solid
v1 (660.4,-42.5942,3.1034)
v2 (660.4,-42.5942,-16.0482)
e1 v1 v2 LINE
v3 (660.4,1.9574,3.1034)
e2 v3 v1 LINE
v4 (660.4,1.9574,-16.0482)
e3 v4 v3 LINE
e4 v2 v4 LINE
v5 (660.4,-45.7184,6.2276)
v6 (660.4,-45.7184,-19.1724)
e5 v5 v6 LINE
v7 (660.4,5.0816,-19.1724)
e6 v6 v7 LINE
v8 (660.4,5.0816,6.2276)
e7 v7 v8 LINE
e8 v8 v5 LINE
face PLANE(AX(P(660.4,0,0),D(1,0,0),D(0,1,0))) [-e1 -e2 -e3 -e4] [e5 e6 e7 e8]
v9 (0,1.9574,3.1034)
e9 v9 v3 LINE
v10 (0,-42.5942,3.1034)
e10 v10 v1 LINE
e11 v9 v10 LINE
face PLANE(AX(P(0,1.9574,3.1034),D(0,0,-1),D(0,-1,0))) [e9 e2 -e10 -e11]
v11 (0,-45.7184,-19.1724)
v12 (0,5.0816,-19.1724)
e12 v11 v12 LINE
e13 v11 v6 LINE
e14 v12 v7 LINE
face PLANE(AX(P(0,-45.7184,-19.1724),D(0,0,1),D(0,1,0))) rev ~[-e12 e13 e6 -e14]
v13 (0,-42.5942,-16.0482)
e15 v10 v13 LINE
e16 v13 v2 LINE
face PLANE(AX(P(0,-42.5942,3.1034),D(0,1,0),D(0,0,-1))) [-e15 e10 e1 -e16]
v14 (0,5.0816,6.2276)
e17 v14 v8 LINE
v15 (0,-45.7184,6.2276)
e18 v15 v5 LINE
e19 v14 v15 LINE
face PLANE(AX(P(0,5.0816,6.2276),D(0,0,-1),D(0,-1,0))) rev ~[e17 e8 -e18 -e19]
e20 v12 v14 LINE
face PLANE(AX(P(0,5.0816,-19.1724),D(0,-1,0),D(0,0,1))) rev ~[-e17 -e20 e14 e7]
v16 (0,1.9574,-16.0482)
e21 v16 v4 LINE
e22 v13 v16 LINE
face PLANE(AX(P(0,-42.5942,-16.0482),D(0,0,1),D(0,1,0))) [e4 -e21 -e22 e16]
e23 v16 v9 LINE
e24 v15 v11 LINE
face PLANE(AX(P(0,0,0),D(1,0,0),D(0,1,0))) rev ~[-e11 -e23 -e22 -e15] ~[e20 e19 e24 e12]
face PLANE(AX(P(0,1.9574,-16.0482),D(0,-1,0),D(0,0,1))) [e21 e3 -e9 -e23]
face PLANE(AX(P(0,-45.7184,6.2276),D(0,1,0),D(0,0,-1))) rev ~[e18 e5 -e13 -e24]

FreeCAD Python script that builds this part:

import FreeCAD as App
import Part
import Sketcher
from FreeCAD import Vector
Q = App.Units.Quantity


def add_polygon(sketch, points):
    """Adds a closed chain of lines whose ends are joined by coincident constraints."""
    first, n = sketch.GeometryCount, len(points)
    for a, b in zip(points, points[1:] + points[:1]):
        sketch.addGeometry(Part.LineSegment(App.Vector(*a, 0), App.Vector(*b, 0)), False)
    for i in range(n):
        sketch.addConstraint(Sketcher.Constraint("Coincident", first + i, 2, first + (i + 1) % n, 1))

doc = App.newDocument("Part")
body = doc.addObject("PartDesign::Body", "Body")

# Sketch on YZ plane
sketch1 = body.newObject("Sketcher::SketchObject", "Sketch")
sketch1.AttachmentSupport = (doc.getObject("YZ_Plane"), [""])
sketch1.MapMode = "FlatFace"
add_polygon(sketch1, [(5, -19), (5, 6), (-46, 6), (-46, -19)])  # lines 0-3
add_polygon(sketch1, [(-43, 3), (2, 3), (2, -16), (-43, -16)])  # lines 4-7
sketch1.addConstraint([
    Sketcher.Constraint("Vertical", 0),
    Sketcher.Constraint("Horizontal", 1),
    Sketcher.Constraint("Vertical", 2),
    Sketcher.Constraint("Horizontal", 3),
    Sketcher.Constraint("Horizontal", 4),
    Sketcher.Constraint("Vertical", 5),
    Sketcher.Constraint("Horizontal", 6),
    Sketcher.Constraint("Vertical", 7),
    Sketcher.Constraint("DistanceX", 1, 2, 1, 1, Q("2 in")),
    Sketcher.Constraint("DistanceY", 0, 1, 0, 2, Q("1 in")),
    Sketcher.Constraint("DistanceX", 4, 2, 0, 2, Q("0.123 in")),
    Sketcher.Constraint("DistanceY", 4, 2, 0, 2, Q("0.123 in")),
    Sketcher.Constraint("DistanceY", 3, 2, 5, 2, Q("0.123 in")),
    Sketcher.Constraint("DistanceX", 2, 2, 6, 2, Q("0.123 in")),
    Sketcher.Constraint("DistanceX", -1, 1, 0, 2, 5.0816),
    Sketcher.Constraint("DistanceY", -1, 1, 0, 2, 6.2276),
])
pad1 = body.newObject("PartDesign::Pad", "Pad")
pad1.Profile = sketch1
pad1.Length = Q("26 in")

doc.recompute()
